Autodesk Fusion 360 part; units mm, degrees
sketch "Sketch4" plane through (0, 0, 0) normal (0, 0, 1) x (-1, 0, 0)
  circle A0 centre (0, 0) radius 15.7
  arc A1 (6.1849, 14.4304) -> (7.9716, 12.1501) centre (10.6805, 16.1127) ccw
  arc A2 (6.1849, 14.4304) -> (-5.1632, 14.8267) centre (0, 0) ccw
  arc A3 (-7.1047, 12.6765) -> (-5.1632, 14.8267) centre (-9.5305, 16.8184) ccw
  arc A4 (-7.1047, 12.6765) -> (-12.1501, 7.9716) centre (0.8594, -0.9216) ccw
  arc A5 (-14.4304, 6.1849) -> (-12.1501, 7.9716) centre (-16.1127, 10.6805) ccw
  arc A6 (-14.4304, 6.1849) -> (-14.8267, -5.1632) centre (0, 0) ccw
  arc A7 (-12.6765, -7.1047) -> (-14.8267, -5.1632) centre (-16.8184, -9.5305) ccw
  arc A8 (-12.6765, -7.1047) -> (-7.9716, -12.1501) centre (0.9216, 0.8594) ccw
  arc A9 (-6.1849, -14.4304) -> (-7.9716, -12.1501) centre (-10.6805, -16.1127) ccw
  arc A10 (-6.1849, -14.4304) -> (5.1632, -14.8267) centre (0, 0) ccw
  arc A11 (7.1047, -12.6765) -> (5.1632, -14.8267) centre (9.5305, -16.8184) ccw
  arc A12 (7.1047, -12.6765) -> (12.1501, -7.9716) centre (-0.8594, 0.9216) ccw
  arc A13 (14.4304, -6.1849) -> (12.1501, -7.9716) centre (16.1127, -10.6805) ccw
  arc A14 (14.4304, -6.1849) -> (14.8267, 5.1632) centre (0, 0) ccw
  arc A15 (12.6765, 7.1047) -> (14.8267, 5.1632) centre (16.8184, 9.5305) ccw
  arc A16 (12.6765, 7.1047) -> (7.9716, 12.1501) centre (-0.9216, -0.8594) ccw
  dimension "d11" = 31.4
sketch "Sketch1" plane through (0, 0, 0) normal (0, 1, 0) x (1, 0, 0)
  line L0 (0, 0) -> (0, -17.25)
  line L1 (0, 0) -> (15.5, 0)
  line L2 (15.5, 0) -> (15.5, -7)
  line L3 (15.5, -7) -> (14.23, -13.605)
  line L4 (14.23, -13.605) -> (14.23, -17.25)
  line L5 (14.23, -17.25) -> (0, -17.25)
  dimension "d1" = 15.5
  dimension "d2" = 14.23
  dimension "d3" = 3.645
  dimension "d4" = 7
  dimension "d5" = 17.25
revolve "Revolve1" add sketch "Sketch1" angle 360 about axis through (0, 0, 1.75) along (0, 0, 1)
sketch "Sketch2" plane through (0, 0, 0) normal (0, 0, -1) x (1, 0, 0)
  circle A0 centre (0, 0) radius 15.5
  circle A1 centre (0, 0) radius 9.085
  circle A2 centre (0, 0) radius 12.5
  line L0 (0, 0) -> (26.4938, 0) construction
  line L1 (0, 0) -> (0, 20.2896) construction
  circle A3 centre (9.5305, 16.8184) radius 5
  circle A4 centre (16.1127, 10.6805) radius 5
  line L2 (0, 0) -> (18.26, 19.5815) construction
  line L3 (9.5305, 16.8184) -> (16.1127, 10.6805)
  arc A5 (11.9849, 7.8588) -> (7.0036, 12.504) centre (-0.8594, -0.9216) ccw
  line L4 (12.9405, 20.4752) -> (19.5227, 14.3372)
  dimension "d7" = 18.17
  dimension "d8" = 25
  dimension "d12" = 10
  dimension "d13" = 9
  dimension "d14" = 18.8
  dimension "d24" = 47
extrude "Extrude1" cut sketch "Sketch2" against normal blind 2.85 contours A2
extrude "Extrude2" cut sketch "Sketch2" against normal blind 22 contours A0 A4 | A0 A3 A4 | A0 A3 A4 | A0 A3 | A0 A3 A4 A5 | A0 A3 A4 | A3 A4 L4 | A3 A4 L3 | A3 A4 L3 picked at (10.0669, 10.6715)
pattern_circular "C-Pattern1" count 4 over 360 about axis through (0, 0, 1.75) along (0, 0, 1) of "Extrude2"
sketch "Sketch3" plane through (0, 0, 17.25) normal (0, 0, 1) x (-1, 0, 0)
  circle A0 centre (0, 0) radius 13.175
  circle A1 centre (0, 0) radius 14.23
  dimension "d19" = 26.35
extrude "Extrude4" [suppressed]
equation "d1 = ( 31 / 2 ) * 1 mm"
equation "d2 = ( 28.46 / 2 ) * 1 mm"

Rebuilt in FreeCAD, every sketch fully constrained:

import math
import FreeCAD as App
import Part
import Sketcher
from FreeCAD import Vector
Q = App.Units.Quantity

doc = App.newDocument("Part")
body = doc.addObject("PartDesign::Body", "Body")

# Sketch on XZ plane
sketch1 = body.newObject("Sketcher::SketchObject", "Sketch")
sketch1.AttachmentSupport = (doc.getObject("XZ_Plane"), [""])
sketch1.MapMode = "FlatFace"
sketch1.addGeometry([
    Part.LineSegment(Vector(15.5, 0, 0), Vector(0, 0, 0)),  # 0
    Part.LineSegment(Vector(0, 0, 0), Vector(0, 17.25, 0)),  # 1
    Part.LineSegment(Vector(0, 17.25, 0), Vector(14.23, 17.25, 0)),  # 2
    Part.LineSegment(Vector(14.23, 17.25, 0), Vector(14.23, 13.605, 0)),  # 3
    Part.LineSegment(Vector(14.23, 13.605, 0), Vector(15.5, 7, 0)),  # 4
    Part.LineSegment(Vector(15.5, 7, 0), Vector(15.5, 0, 0)),  # 5
], False)
sketch1.addConstraint([
    Sketcher.Constraint("Coincident", 0, 2, 1, 1),
    Sketcher.Constraint("Coincident", 1, 2, 2, 1),
    Sketcher.Constraint("Coincident", 2, 2, 3, 1),
    Sketcher.Constraint("Coincident", 3, 2, 4, 1),
    Sketcher.Constraint("Coincident", 4, 2, 5, 1),
    Sketcher.Constraint("Coincident", 5, 2, 0, 1),
    Sketcher.Constraint("Horizontal", 0),
    Sketcher.Constraint("Vertical", 1),
    Sketcher.Constraint("Horizontal", 2),
    Sketcher.Constraint("Vertical", 3),
    Sketcher.Constraint("Vertical", 5),
    Sketcher.Constraint("Coincident", 0, 2, -1, 1),
    Sketcher.Constraint("DistanceY", 5, 2, 5, 1, 7.0),
    Sketcher.Constraint("DistanceX", 0, 2, 0, 1, 15.5),
    Sketcher.Constraint("DistanceX", 2, 1, 2, 2, 14.23),
    Sketcher.Constraint("DistanceY", 1, 1, 1, 2, 17.25),
    Sketcher.Constraint("DistanceY", 3, 2, 3, 1, 3.645),
])
revolution = body.newObject("PartDesign::Revolution", "Revolution")
revolution.Profile = sketch1
revolution.ReferenceAxis = (sketch1, ["V_Axis"])
revolution.Angle = 360

# Sketch on XY plane
sketch2 = body.newObject("Sketcher::SketchObject", "Sketch001")
sketch2.AttachmentSupport = (doc.getObject("XY_Plane"), [""])
sketch2.MapMode = "FlatFace"
sketch2.addGeometry([
    Part.Circle(Vector(0, 0, 0), Vector(0, 0, 1), 12.5),
    Part.Circle(Vector(0, 0, 0), Vector(0, 0, 1), 9.085),
], False)
sketch2.addConstraint([
    Sketcher.Constraint("Coincident", 0, 3, -1, 1),
    Sketcher.Constraint("Coincident", 1, 3, -1, 1),
    Sketcher.Constraint("Diameter", 0, 25.0),
    Sketcher.Constraint("Diameter", 1, 18.17),
])
pocket1 = body.newObject("PartDesign::Pocket", "Pocket")
pocket1.Profile = sketch2
pocket1.Length = 2.85
pocket1.Reversed = True

# Sketch on XY plane
sketch3 = body.newObject("Sketcher::SketchObject", "Sketch002")
sketch3.AttachmentSupport = (doc.getObject("XY_Plane"), [""])
sketch3.MapMode = "FlatFace"
sketch3.addGeometry([
    Part.ArcOfCircle(Part.Circle(Vector(16.1127, -10.6805, 0), Vector(0, 0, 1), 5), math.radians(-46.999396), math.radians(145.644095)),
    Part.LineSegment(Vector(19.5227, -14.3372, 0), Vector(12.9405, -20.4752, 0)),
    Part.ArcOfCircle(Part.Circle(Vector(9.5305, -16.8184, 0), Vector(0, 0, 1), 5), math.radians(120.35707), math.radians(312.999823)),
    Part.ArcOfCircle(Part.Circle(Vector(-0.86043, 0.922486, 0), Vector(0, 0, 1), 15.559996), math.radians(-59.642056), math.radians(-34.357173)),
], False)
sketch3.addConstraint([
    Sketcher.Constraint("Tangent", 0, 1, 1, 1),
    Sketcher.Constraint("Tangent", 1, 2, 2, 2),
    Sketcher.Constraint("Tangent", 2, 1, 3, 1),
    Sketcher.Constraint("Tangent", 3, 2, 0, 2),
    Sketcher.Constraint("Equal", 0, 2),
    Sketcher.Constraint("Radius", 0, 5.0),
    Sketcher.Constraint("Distance", 1, 9.0),
    Sketcher.Constraint("Angle", 1, Q("-137 deg")),
    Sketcher.Constraint("Radius", 3, 15.56),
    Sketcher.Constraint("DistanceY", 2, 1, -1, 1, 12.504),
    Sketcher.Constraint("DistanceX", -1, 1, 3, 2, 11.985),
])
pocket2 = body.newObject("PartDesign::Pocket", "Pocket001")
pocket2.Profile = sketch3
pocket2.Length = 22
pocket2.Reversed = True
doc.recompute()

polarpattern = body.newObject("PartDesign::PolarPattern", "PolarPattern")
polarpattern.Originals = [pocket2]
polarpattern.Axis = (doc.getObject("Z_Axis"), [""])
polarpattern.Angle = 360
polarpattern.Occurrences = 4
body.Tip = polarpattern

doc.recompute()
